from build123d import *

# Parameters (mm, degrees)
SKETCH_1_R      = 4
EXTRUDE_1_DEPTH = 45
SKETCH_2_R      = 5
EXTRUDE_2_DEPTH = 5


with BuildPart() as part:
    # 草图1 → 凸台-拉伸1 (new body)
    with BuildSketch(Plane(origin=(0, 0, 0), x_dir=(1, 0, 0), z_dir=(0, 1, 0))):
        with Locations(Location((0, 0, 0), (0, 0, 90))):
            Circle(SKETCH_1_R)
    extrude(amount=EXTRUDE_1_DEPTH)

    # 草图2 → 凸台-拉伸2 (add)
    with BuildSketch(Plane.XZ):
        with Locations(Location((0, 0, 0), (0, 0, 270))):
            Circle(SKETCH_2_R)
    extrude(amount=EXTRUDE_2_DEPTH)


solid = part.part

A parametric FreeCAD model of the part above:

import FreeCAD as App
import Part
import Sketcher

V = App.Vector

doc = App.newDocument("Part")
body = doc.addObject("PartDesign::Body", "Body")

# Sketch on XZ plane
sketch1 = doc.addObject("Sketcher::SketchObject", "Sketch")
body.addObject(sketch1)
sketch1.AttachmentSupport = (doc.XZ_Plane, [""])
sketch1.MapMode = "FlatFace"
sketch1.addGeometry(Part.Circle(V(0, 0, 0), V(0, 0, 1), 4), False)
sketch1.addConstraint([
    Sketcher.Constraint("Coincident", 0, 3, -1, 1),
    Sketcher.Constraint("Diameter", 0, 8.0),
])
pad1 = doc.addObject("PartDesign::Pad", "Pad")
body.addObject(pad1)
pad1.Profile = sketch1
pad1.Length = 45
pad1.Reversed = True

# Sketch on XZ plane
sketch2 = doc.addObject("Sketcher::SketchObject", "Sketch001")
body.addObject(sketch2)
sketch2.AttachmentSupport = (doc.XZ_Plane, [""])
sketch2.MapMode = "FlatFace"
sketch2.addGeometry(Part.Circle(V(0, 0, 0), V(0, 0, 1), 5), False)
sketch2.addConstraint([
    Sketcher.Constraint("Coincident", 0, 3, -1, 1),
    Sketcher.Constraint("Diameter", 0, 10.0),
])
pad2 = doc.addObject("PartDesign::Pad", "Pad001")
body.addObject(pad2)
pad2.Profile = sketch2
pad2.Length = 5

doc.recompute()
